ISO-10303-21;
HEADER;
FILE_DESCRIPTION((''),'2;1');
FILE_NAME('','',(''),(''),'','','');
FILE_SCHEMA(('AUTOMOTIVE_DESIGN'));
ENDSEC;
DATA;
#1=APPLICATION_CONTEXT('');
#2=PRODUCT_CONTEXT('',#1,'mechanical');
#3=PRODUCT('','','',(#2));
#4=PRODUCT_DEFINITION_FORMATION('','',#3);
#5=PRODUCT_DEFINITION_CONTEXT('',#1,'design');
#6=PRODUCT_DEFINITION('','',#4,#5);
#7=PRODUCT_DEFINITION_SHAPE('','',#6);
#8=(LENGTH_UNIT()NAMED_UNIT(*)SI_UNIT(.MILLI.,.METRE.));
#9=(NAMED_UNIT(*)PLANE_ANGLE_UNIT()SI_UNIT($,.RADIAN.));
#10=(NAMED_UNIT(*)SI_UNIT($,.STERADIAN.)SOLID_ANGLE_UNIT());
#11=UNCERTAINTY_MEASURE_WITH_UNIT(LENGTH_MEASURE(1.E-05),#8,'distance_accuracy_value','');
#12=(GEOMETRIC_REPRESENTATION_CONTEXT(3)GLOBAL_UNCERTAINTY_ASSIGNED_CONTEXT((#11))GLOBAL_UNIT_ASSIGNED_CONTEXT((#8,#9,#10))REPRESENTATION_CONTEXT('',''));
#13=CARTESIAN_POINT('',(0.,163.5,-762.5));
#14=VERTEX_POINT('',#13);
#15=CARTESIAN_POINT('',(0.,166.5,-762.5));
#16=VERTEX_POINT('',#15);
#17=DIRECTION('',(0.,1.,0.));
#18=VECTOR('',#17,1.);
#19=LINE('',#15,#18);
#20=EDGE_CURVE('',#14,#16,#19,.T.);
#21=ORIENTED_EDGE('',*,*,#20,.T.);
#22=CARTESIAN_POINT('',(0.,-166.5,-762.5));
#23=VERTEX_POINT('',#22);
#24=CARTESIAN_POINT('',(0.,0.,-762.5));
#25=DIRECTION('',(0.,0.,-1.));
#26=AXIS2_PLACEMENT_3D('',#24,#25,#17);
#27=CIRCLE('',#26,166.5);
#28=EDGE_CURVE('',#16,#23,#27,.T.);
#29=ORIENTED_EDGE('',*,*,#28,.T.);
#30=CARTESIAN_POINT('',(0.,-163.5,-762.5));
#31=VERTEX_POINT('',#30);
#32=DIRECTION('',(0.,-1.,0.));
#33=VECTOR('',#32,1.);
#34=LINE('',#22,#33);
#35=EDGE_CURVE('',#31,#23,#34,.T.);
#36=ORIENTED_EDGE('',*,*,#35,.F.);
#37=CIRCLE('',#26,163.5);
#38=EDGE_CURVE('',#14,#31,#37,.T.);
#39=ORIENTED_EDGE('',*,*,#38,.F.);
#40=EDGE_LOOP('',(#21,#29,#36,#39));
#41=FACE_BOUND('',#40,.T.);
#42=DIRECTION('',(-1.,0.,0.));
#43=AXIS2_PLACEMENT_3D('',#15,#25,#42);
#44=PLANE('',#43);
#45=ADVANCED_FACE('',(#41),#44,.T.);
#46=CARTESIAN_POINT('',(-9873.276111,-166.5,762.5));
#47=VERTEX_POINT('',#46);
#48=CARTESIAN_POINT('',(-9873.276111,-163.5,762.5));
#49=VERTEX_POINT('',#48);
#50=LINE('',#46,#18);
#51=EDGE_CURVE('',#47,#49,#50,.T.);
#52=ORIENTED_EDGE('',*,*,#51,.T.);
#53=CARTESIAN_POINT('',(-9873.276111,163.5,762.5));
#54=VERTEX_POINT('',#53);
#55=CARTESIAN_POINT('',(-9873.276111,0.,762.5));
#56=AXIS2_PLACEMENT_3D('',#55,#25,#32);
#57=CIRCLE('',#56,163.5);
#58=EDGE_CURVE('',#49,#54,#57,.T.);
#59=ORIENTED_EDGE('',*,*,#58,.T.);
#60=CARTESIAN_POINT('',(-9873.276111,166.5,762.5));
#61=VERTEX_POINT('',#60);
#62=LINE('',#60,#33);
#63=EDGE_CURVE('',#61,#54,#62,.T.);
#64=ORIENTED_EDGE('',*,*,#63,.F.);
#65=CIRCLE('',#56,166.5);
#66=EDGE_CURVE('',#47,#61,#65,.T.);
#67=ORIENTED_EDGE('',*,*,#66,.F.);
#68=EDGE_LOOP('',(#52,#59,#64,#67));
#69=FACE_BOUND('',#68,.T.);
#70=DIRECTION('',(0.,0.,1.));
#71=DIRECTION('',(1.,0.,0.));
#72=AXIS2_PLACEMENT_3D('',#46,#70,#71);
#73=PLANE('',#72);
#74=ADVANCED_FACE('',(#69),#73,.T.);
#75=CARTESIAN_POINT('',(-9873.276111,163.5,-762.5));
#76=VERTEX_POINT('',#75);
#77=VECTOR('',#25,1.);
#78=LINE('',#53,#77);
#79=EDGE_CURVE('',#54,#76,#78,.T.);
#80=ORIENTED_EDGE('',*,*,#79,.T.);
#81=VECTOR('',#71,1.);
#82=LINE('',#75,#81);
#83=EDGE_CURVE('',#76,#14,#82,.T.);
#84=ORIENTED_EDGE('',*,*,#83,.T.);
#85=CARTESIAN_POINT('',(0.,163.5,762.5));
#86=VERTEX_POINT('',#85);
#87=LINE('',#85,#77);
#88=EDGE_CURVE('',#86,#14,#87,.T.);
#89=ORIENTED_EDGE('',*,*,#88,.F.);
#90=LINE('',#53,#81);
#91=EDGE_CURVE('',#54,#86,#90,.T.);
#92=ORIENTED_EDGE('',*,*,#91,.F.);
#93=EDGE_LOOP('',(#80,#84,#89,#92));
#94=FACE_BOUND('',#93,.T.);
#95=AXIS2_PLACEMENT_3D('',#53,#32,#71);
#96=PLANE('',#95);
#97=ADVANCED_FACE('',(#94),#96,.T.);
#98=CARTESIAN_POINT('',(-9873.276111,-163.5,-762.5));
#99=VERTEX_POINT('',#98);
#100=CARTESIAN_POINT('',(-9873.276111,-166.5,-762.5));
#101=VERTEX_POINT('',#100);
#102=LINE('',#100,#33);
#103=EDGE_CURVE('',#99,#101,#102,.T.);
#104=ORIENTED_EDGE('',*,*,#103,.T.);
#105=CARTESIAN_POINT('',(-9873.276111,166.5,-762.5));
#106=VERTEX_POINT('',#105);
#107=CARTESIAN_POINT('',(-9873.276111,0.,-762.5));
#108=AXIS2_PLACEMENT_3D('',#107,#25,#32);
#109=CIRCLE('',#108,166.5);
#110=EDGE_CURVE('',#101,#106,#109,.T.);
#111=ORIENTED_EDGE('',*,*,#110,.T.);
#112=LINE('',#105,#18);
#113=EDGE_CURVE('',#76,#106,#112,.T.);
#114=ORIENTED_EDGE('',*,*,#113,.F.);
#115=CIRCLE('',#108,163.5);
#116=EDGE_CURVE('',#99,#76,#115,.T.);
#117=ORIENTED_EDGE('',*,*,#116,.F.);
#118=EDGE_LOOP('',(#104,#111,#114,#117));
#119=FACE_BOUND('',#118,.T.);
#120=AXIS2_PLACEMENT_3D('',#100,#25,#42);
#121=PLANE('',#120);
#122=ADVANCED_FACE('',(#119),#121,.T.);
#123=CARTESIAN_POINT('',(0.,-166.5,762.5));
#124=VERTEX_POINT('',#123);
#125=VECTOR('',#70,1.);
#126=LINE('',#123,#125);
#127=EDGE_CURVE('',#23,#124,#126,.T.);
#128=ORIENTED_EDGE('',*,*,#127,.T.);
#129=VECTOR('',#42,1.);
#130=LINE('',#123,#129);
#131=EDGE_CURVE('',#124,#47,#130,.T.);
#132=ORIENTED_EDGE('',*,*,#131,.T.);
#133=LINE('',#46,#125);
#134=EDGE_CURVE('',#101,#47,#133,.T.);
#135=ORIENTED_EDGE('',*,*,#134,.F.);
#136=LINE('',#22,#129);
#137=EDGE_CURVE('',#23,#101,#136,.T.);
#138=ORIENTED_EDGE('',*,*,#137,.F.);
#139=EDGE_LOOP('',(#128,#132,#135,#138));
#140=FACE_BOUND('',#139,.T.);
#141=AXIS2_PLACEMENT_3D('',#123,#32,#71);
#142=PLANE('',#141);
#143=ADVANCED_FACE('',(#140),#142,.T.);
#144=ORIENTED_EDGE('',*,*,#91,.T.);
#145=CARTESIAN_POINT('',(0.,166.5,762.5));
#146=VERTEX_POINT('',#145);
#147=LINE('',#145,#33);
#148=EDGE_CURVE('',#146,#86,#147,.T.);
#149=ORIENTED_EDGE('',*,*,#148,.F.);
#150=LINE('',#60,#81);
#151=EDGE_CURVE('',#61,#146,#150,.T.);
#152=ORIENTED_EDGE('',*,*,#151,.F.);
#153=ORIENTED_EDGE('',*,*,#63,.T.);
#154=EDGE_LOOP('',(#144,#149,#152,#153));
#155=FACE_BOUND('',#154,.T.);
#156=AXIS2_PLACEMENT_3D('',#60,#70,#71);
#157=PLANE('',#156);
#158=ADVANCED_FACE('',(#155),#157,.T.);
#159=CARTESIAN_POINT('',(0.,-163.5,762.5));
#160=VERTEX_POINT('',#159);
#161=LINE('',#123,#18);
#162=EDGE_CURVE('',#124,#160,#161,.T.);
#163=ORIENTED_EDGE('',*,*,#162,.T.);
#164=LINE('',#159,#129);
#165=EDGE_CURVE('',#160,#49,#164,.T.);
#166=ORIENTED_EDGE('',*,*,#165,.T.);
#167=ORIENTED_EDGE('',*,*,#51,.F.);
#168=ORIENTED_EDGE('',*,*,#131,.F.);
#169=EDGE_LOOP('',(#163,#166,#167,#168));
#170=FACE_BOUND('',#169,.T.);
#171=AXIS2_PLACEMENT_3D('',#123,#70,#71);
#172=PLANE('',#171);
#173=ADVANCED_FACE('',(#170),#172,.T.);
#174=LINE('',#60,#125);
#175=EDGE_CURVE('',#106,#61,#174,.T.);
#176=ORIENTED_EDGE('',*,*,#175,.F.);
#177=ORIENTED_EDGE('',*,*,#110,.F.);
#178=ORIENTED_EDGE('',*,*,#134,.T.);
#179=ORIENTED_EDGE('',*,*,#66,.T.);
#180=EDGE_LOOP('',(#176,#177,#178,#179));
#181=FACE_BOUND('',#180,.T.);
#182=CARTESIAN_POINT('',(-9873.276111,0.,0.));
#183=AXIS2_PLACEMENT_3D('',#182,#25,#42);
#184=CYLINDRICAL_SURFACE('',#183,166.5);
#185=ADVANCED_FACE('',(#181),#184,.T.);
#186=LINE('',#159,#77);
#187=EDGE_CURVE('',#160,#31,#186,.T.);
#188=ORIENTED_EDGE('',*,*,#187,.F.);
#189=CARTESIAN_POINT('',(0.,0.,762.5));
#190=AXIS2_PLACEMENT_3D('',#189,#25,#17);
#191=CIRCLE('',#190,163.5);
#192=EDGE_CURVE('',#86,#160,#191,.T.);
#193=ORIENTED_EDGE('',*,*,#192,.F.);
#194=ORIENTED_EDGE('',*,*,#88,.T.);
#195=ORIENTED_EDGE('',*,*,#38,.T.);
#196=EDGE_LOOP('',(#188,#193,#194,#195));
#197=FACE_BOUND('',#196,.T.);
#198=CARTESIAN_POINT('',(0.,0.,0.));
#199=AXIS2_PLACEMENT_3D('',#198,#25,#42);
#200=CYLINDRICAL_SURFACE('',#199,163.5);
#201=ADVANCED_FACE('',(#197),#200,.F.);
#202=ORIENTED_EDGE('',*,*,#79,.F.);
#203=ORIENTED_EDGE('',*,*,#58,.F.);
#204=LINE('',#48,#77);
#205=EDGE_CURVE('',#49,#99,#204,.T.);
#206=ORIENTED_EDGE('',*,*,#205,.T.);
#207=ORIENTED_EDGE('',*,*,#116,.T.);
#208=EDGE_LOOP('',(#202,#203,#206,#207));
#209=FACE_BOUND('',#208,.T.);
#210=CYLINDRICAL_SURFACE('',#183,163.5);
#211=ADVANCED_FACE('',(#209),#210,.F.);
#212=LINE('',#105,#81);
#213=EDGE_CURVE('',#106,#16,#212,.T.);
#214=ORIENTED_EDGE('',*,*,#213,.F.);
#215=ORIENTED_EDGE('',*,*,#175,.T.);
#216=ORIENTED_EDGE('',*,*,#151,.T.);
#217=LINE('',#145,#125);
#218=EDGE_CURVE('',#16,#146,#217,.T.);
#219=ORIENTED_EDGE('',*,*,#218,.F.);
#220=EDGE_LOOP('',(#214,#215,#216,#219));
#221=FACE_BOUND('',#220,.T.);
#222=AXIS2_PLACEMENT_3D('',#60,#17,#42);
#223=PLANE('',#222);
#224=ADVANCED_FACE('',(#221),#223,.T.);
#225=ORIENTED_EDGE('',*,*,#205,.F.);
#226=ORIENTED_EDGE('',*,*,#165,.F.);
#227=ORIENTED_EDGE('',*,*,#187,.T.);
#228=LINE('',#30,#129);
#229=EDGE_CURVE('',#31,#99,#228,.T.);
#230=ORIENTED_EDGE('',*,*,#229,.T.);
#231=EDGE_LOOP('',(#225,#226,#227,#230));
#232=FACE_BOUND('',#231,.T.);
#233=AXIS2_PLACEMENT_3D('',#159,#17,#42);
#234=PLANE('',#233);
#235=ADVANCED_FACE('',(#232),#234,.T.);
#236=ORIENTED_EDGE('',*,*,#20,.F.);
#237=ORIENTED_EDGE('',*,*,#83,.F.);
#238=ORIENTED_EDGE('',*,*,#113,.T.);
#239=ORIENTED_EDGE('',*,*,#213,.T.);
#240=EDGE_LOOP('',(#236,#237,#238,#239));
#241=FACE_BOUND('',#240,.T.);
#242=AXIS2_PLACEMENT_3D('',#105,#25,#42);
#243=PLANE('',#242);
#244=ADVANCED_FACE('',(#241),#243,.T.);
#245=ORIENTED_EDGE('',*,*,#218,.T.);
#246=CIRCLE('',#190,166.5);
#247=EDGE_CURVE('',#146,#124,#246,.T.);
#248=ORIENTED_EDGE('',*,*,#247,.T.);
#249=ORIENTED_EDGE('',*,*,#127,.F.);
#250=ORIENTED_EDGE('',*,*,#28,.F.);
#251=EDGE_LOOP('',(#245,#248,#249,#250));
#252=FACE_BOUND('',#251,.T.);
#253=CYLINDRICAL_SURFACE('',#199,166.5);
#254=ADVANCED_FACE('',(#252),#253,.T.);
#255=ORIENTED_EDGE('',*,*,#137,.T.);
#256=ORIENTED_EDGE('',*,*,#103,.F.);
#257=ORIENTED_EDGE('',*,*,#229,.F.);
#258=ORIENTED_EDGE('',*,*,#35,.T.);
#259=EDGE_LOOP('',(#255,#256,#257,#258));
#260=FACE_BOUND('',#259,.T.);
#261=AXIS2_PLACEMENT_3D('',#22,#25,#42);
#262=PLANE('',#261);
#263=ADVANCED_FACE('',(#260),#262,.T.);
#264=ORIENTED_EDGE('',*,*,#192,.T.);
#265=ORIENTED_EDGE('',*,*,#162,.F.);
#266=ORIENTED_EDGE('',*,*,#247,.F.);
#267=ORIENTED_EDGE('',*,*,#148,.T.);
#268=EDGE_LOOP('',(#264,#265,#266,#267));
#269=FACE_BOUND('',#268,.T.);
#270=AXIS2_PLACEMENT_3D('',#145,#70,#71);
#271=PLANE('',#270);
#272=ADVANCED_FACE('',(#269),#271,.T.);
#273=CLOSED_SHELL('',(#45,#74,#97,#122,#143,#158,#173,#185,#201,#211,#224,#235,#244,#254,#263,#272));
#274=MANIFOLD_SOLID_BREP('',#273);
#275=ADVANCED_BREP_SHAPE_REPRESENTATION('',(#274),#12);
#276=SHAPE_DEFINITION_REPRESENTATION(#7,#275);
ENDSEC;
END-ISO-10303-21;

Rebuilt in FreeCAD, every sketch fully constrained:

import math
import FreeCAD as App
import Part
import Sketcher
Q = App.Units.Quantity

doc = App.newDocument("Part")
body = doc.addObject("PartDesign::Body", "Body")

# Sketch on YZ plane
sketch1 = doc.addObject("Sketcher::SketchObject", "Sketch")
body.addObject(sketch1)
sketch1.AttachmentSupport = (doc.YZ_Plane, [""])
sketch1.MapMode = "FlatFace"
sketch1.addGeometry([
    Part.LineSegment(App.Vector(166.5, 762.5, 0), App.Vector(163.5, 762.5, 0)),
    Part.LineSegment(App.Vector(163.5, 762.5, 0), App.Vector(163.5, -762.5, 0)),
    Part.LineSegment(App.Vector(163.5, -762.5, 0), App.Vector(166.5, -762.5, 0)),
    Part.LineSegment(App.Vector(166.5, -762.5, 0), App.Vector(166.5, 762.5, 0)),
], False)
sketch1.addConstraint([
    Sketcher.Constraint("Coincident", 0, 2, 1, 1),
    Sketcher.Constraint("Coincident", 1, 2, 2, 1),
    Sketcher.Constraint("Coincident", 2, 2, 3, 1),
    Sketcher.Constraint("Coincident", 3, 2, 0, 1),
    Sketcher.Constraint("Horizontal", 0),
    Sketcher.Constraint("Vertical", 1),
    Sketcher.Constraint("Horizontal", 2),
    Sketcher.Constraint("Vertical", 3),
    Sketcher.Constraint("DistanceX", 0, 2, 0, 1, Q("3 mm")),
    Sketcher.Constraint("DistanceY", 1, 2, 1, 1, Q("1525 mm")),
    Sketcher.Constraint("DistanceX", -1, 1, 0, 2, Q("163.5 mm")),
    Sketcher.Constraint("DistanceY", -1, 1, 0, 2, Q("762.5 mm")),
])

# Sketch on XY plane
sketch2 = doc.addObject("Sketcher::SketchObject", "Sketch001")
body.addObject(sketch2)
sketch2.AttachmentSupport = (doc.XY_Plane, [""])
sketch2.MapMode = "FlatFace"
sketch2.addGeometry([
    Part.LineSegment(App.Vector(0, -165, 0), App.Vector(-9873, -165, 0)),
    Part.ArcOfCircle(Part.Circle(App.Vector(-9873, 0, 0), App.Vector(0, 0, 1), 165), math.radians(90), math.radians(270)),
    Part.LineSegment(App.Vector(-9873, 165, 0), App.Vector(0, 165, 0)),
    Part.ArcOfCircle(Part.Circle(App.Vector(0, 0, 0), App.Vector(0, 0, 1), 165), math.radians(-90), math.radians(90)),
], False)
sketch2.addConstraint([
    Sketcher.Constraint("Tangent", 0, 2, 1, 2),
    Sketcher.Constraint("Tangent", 1, 1, 2, 1),
    Sketcher.Constraint("Tangent", 2, 2, 3, 2),
    Sketcher.Constraint("Tangent", 3, 1, 0, 1),
    Sketcher.Constraint("Horizontal", 0),
    Sketcher.Constraint("Horizontal", 2),
    Sketcher.Constraint("Coincident", 3, 3, -1, 1),
    Sketcher.Constraint("Radius", 1, Q("165 mm")),
    Sketcher.Constraint("DistanceX", 0, 2, 0, 1, Q("9873.276111 mm")),
])
doc.recompute()

additivepipe = doc.addObject("PartDesign::AdditivePipe", "AdditivePipe")
body.addObject(additivepipe)
additivepipe.Profile = sketch1
additivepipe.Spine = (sketch2, ["Edge1", "Edge2", "Edge3", "Edge4"])

doc.recompute()
